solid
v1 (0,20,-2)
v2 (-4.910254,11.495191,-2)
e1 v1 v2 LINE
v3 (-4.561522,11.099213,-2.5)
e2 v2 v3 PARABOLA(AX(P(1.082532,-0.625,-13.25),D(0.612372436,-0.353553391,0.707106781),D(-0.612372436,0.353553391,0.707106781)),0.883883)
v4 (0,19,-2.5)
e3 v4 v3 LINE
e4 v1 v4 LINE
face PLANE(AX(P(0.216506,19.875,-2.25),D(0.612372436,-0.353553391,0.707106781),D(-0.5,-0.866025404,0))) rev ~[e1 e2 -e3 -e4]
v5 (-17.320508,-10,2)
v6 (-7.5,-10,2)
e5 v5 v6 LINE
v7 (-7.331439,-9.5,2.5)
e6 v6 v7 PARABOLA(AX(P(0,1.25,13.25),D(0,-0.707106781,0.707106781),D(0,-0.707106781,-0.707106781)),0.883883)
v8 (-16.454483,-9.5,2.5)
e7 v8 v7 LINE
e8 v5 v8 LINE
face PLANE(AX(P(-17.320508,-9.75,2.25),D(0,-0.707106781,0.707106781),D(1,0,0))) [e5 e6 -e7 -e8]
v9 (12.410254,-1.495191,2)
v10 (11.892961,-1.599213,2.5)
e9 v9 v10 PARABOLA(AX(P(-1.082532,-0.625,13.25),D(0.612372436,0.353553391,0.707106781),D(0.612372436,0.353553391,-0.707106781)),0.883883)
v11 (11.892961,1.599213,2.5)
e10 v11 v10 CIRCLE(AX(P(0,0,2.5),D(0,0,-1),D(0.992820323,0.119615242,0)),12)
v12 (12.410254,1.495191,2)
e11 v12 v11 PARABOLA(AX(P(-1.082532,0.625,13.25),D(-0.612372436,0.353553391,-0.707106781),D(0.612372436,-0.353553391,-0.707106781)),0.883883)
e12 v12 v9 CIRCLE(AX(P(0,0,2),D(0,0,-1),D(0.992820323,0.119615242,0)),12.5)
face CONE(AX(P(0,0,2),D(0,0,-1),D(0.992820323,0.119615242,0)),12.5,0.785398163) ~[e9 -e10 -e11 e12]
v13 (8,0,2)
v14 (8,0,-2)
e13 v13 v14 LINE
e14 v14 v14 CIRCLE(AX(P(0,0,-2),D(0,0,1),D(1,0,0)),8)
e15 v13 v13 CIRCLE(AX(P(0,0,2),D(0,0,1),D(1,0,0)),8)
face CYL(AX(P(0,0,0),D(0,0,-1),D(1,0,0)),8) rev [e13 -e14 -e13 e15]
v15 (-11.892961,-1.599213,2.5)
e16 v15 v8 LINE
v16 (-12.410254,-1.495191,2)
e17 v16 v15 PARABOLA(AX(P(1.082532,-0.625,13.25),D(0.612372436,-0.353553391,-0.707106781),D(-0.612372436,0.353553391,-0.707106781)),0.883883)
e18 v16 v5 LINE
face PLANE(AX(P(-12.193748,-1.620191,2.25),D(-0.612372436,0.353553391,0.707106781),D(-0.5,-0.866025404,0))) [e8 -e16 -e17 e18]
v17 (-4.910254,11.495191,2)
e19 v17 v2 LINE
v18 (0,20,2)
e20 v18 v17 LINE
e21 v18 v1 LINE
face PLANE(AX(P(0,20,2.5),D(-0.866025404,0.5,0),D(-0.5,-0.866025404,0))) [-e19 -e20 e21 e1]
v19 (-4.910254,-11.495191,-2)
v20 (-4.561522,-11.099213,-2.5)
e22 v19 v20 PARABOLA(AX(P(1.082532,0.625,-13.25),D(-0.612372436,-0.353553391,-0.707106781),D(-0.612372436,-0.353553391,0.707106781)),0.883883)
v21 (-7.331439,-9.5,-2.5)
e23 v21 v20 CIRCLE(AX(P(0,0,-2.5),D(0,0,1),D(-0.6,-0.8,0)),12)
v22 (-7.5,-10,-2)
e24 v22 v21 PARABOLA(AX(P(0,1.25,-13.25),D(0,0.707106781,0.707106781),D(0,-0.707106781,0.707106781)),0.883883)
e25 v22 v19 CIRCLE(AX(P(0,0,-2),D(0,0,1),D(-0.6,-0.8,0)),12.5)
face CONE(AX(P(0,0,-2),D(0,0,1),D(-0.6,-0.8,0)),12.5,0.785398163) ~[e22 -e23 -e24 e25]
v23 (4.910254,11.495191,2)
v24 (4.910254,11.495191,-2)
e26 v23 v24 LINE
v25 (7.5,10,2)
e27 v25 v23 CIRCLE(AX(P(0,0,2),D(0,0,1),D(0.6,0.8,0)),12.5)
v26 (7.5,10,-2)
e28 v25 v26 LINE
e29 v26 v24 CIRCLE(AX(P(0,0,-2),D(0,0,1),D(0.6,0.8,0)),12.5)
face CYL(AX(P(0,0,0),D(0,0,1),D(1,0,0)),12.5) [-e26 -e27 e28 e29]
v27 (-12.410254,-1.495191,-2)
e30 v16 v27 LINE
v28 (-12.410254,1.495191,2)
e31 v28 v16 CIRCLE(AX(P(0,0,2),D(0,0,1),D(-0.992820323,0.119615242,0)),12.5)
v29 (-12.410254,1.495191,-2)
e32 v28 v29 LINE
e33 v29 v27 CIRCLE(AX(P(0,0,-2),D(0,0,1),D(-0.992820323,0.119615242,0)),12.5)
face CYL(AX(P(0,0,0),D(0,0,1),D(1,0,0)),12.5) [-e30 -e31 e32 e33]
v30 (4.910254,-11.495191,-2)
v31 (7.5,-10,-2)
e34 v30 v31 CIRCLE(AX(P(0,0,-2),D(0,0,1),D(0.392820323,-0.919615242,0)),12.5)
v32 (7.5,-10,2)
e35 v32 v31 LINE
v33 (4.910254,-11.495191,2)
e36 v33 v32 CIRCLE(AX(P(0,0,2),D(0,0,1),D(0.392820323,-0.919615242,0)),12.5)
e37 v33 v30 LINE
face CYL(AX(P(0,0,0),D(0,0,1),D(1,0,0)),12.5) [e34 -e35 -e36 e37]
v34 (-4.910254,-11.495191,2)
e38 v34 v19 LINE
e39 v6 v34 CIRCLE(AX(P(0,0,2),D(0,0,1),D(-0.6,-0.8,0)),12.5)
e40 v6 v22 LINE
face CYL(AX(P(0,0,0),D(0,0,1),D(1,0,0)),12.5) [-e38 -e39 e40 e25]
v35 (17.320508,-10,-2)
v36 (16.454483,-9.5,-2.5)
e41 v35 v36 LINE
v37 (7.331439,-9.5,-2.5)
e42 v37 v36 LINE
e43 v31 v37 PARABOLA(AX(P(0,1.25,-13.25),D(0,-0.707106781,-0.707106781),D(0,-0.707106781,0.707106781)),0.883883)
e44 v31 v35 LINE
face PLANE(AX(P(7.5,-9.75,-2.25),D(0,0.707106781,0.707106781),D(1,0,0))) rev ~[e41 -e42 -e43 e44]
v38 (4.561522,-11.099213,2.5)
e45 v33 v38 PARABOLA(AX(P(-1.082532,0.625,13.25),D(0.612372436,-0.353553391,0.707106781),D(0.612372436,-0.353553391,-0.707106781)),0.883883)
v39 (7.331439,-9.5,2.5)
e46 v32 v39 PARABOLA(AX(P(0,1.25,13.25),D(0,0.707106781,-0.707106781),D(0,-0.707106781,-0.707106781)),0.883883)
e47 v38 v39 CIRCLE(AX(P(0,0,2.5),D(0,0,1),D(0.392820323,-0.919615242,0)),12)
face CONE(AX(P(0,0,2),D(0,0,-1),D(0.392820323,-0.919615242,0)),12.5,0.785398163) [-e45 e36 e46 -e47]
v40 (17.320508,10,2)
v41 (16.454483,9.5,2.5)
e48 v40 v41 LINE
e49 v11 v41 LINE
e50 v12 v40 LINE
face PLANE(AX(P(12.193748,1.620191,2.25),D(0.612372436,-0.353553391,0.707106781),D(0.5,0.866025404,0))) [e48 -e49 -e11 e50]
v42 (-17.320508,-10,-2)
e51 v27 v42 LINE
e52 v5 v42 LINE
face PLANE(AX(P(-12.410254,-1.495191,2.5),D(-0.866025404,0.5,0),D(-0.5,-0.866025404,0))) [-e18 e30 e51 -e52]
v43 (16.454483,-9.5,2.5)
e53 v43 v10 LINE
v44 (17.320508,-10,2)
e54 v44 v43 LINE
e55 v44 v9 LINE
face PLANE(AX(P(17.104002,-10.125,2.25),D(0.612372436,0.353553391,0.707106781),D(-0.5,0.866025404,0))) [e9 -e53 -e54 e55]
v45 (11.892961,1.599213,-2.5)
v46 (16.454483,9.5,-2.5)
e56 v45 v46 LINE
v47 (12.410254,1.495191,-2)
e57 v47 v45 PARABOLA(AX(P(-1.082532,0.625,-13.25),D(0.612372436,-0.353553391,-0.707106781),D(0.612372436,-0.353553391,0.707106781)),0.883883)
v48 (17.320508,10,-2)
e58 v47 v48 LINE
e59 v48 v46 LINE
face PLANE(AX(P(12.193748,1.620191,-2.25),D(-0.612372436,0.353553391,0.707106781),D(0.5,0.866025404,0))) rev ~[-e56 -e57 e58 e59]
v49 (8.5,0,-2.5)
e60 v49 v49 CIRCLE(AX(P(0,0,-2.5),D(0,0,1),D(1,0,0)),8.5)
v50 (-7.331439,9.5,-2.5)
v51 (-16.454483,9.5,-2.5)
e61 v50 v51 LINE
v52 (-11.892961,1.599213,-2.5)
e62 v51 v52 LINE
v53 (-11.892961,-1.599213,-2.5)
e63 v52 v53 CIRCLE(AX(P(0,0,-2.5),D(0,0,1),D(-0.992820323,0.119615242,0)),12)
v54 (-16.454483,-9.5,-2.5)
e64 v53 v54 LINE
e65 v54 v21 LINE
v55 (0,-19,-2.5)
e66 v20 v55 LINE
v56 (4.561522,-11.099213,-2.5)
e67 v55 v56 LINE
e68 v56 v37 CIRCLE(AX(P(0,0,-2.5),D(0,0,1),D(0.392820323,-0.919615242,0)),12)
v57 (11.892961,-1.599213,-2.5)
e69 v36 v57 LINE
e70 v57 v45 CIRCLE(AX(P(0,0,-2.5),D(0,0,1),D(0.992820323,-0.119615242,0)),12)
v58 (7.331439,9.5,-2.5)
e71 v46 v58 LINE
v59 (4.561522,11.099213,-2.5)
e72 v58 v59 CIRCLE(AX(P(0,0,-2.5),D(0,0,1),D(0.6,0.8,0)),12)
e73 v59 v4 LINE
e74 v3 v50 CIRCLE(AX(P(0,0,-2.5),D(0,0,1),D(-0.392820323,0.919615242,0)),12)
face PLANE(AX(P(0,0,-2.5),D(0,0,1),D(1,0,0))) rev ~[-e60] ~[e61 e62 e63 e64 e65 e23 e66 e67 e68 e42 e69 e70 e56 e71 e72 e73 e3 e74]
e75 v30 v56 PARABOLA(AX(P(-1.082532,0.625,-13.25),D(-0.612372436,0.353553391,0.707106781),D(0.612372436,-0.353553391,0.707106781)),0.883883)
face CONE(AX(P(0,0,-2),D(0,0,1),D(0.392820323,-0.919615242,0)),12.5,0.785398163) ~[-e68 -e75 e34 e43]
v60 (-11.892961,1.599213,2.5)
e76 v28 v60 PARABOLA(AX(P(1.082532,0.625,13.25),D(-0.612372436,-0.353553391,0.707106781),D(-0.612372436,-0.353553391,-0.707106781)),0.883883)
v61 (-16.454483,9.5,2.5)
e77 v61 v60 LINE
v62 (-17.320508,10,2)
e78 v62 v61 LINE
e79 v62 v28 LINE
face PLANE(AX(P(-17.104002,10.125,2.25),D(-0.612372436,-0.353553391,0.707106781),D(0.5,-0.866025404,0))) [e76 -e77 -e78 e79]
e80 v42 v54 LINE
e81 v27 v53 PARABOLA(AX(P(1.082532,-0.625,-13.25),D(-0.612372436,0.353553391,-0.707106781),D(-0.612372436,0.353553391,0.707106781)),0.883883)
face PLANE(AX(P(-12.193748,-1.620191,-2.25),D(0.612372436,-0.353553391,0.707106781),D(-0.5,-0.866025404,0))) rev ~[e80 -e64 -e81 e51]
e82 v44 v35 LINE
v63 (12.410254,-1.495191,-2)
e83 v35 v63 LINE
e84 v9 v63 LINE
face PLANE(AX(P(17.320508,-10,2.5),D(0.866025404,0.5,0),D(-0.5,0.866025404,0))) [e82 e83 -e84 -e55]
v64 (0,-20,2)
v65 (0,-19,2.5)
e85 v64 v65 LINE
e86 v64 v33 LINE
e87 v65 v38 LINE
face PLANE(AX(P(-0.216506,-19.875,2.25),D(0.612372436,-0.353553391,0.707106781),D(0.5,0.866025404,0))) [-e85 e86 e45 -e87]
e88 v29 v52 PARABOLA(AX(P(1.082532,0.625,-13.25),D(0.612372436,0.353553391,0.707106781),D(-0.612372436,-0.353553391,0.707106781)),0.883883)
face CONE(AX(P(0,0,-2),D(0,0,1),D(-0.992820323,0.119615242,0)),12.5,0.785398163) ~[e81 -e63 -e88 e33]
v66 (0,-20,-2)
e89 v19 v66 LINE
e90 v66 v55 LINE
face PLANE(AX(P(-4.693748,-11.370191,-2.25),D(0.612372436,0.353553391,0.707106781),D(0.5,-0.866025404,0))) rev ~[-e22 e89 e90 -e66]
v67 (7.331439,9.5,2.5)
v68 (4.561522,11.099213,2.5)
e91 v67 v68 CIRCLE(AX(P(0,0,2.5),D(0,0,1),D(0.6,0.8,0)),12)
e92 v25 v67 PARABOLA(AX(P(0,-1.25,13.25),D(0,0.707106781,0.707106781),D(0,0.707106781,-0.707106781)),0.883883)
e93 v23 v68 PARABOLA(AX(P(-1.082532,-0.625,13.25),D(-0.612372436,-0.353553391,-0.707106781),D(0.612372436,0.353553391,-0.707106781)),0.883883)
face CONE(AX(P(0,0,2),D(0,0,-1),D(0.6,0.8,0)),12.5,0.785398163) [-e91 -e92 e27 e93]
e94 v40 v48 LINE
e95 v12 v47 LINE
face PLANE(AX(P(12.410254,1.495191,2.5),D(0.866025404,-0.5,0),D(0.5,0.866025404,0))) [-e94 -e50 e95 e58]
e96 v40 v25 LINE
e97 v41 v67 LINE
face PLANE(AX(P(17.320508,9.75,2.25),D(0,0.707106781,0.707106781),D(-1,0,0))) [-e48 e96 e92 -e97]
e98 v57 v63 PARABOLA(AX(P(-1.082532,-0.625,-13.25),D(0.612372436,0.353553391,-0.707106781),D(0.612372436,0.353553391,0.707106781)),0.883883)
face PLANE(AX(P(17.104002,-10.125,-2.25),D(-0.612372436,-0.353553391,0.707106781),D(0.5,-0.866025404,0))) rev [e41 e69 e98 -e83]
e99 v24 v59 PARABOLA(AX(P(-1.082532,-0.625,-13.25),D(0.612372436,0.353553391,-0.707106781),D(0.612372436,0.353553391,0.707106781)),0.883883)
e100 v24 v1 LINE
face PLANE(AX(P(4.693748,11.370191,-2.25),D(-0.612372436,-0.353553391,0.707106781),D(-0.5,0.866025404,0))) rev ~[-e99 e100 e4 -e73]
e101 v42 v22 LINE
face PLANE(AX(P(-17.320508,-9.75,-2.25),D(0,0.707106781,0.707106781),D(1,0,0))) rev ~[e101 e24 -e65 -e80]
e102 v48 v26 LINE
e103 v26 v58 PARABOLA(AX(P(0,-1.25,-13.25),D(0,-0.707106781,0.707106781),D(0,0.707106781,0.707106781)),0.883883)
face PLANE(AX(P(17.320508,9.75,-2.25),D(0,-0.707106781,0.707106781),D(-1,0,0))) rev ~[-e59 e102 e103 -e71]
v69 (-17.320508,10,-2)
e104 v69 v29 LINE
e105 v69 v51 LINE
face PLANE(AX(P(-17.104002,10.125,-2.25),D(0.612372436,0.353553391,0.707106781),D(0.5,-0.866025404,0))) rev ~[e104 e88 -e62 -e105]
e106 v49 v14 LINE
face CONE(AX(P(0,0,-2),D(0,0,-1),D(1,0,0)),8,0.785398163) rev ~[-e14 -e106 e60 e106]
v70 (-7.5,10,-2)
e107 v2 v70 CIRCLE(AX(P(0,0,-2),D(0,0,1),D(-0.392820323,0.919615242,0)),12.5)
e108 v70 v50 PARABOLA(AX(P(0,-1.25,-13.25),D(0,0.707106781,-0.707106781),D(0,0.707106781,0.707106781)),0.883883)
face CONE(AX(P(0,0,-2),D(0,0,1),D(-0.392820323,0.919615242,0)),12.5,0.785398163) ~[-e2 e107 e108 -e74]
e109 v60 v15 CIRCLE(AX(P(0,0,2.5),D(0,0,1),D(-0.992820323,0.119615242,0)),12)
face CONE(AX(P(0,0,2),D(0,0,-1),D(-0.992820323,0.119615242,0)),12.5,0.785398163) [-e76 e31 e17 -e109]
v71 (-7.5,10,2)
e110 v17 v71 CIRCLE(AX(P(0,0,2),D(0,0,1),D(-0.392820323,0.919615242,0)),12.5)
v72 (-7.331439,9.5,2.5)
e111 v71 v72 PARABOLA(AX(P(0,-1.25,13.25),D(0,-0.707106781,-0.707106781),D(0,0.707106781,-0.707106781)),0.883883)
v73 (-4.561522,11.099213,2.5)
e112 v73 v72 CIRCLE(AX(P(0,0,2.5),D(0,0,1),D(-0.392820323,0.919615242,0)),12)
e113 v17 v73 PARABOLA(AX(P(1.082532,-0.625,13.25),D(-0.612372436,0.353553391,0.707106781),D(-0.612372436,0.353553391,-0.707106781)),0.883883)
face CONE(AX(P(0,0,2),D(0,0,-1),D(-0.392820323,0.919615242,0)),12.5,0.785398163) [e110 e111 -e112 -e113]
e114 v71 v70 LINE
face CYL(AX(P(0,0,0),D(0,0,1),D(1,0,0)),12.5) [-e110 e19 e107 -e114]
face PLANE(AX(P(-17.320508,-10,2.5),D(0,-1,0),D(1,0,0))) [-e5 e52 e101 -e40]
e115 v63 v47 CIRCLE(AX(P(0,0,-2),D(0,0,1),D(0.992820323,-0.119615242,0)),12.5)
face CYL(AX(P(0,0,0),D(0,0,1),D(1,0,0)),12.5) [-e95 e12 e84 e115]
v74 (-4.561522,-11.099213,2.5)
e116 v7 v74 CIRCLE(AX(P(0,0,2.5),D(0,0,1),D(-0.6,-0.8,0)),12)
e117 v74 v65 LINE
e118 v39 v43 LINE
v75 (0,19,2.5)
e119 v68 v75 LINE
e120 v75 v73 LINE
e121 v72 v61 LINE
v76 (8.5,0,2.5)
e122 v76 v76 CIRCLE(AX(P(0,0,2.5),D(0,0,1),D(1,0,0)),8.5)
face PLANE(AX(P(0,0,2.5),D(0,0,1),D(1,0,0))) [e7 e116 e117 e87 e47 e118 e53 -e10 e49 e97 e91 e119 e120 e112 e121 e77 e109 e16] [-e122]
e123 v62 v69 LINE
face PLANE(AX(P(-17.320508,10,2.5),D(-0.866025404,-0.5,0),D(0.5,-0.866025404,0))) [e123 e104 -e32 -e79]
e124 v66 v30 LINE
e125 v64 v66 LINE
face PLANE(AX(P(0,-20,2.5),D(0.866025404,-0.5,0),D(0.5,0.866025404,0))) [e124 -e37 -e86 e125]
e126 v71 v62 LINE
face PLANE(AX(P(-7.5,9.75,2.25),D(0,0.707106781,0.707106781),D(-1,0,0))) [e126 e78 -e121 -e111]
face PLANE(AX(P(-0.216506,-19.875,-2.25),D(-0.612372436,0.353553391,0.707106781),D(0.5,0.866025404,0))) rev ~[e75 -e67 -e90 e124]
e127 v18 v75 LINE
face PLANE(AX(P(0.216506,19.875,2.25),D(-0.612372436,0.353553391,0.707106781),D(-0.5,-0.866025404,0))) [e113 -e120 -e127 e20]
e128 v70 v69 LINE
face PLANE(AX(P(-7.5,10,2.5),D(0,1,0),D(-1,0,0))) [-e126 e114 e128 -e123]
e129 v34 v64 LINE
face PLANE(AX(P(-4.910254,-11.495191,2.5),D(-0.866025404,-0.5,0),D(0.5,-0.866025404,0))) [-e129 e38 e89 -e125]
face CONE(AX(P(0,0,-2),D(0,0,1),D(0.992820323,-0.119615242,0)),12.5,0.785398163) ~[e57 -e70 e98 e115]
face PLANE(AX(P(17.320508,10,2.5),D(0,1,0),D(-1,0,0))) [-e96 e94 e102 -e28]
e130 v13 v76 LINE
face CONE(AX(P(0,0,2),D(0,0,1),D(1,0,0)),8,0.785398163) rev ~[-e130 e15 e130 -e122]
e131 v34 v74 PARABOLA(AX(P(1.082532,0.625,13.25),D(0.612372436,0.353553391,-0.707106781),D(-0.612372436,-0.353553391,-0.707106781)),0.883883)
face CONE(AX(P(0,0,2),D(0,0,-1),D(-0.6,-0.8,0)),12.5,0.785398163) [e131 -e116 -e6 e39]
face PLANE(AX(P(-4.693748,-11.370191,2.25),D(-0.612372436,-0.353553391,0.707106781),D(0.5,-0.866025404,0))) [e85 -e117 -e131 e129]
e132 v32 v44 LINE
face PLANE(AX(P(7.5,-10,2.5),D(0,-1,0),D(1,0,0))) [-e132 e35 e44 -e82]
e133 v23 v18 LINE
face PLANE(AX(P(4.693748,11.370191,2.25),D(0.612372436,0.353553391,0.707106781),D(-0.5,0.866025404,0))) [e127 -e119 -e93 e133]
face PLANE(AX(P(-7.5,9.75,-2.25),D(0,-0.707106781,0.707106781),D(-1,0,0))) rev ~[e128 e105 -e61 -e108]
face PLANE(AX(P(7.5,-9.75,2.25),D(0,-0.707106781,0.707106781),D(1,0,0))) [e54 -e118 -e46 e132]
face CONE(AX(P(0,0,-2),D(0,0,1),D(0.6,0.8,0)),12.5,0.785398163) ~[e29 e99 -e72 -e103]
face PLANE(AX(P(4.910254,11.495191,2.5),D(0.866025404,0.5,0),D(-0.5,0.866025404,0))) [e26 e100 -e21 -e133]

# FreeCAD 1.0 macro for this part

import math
import FreeCAD as App
import Part
import Sketcher

V = App.Vector
Q = App.Units.Quantity


def edges_at(feature, points):
    """Names of the edges that pass closest to the given points."""
    edges = feature.Shape.Edges
    near = lambda p: min(range(len(edges)), key=lambda i: edges[i].distToShape(Part.Vertex(*p))[0])
    return sorted({f"Edge{near(p) + 1}" for p in points})

doc = App.newDocument("Part")
params = doc.addObject("Spreadsheet::Sheet", "Params")
for row, (alias, value) in enumerate([
    ("sketch1_diameter", "25 mm"),
    ("sketch1_diameter2", "16 mm"),
    ("pad1_length", "5 mm"),
    ("sketch2_radius", "12.5 mm"),
    ("pad2_length", "5 mm"),
    ("chamfer_size", "0.5 mm"),
], start=1):
    params.set(f"A{row}", alias)
    params.set(f"B{row}", "=" + value)
    params.setAlias(f"B{row}", alias)

body = doc.addObject("PartDesign::Body", "Body")

# Sketch on XY plane
sketch1 = body.newObject("Sketcher::SketchObject", "Sketch")
sketch1.AttachmentSupport = (doc.getObject("XY_Plane"), [""])
sketch1.MapMode = "FlatFace"
sketch1.addGeometry(Part.Circle(V(0, 0, 0), V(0, 0, 1), 12.5), False)
sketch1.addGeometry(Part.Circle(V(0, 0, 0), V(0, 0, 1), 8), False)
sketch1.addConstraint(Sketcher.Constraint("Coincident", 0, 3, -1, 1))
sketch1.addConstraint(Sketcher.Constraint("Coincident", 1, 3, -1, 1))
sketch1.addConstraint(Sketcher.Constraint("Diameter", 0, 25.0))
sketch1.addConstraint(Sketcher.Constraint("Diameter", 1, 16.0))
sketch1.setExpression("Constraints[2]", "Params.sketch1_diameter")
sketch1.setExpression("Constraints[3]", "Params.sketch1_diameter2")
pad1 = body.newObject("PartDesign::Pad", "Pad")
pad1.Profile = sketch1
pad1.setExpression("Length", "Params.pad1_length")
pad1.Midplane = True

# Sketch on XY plane
sketch2 = body.newObject("Sketcher::SketchObject", "Sketch001")
sketch2.AttachmentSupport = (doc.getObject("XY_Plane"), [""])
sketch2.MapMode = "FlatFace"
sketch2.AttachmentOffset = App.Placement(V(0, 0, 2.5), App.Rotation())
sketch2.addGeometry(Part.ArcOfCircle(Part.Circle(V(0, 0, 0), V(0, 0, 1), 12.5), math.radians(90), math.radians(113.130102)), False)
sketch2.addGeometry(Part.ArcOfCircle(Part.Circle(V(0, 0, 0), V(0, 0, 1), 12.5), math.radians(66.869898), math.radians(90)), False)
sketch2.addGeometry(Part.LineSegment(V(4.910254, 11.495191, 0), V(0, 20, 0)), False)
sketch2.addGeometry(Part.LineSegment(V(0, 20, 0), V(-4.910254, 11.495191, 0)), False)
sketch2.addGeometry(Part.LineSegment(V(17.320508, 10, 0), V(7.5, 10, 0)), False)
sketch2.addGeometry(Part.ArcOfCircle(Part.Circle(V(0, 0, 0), V(0, 0, 1), 12.5), math.radians(6.869898), math.radians(53.130102)), False)
sketch2.addGeometry(Part.LineSegment(V(12.410254, 1.495191, 0), V(17.320508, 10, 0)), False)
sketch2.addGeometry(Part.ArcOfCircle(Part.Circle(V(0, 0, 0), V(0, 0, 1), 12.5), math.radians(126.869898), math.radians(173.130102)), False)
sketch2.addGeometry(Part.LineSegment(V(-7.5, 10, 0), V(-17.320508, 10, 0)), False)
sketch2.addGeometry(Part.LineSegment(V(-17.320508, 10, 0), V(-12.410254, 1.495191, 0)), False)
sketch2.addGeometry(Part.ArcOfCircle(Part.Circle(V(0, 0, 0), V(0, 0, 1), 12.5), math.radians(-173.130102), math.radians(-126.869898)), False)
sketch2.addGeometry(Part.LineSegment(V(-12.410254, -1.495191, 0), V(-17.320508, -10, 0)), False)
sketch2.addGeometry(Part.LineSegment(V(-17.320508, -10, 0), V(-7.5, -10, 0)), False)
sketch2.addGeometry(Part.LineSegment(V(17.320508, -10, 0), V(12.410254, -1.495191, 0)), False)
sketch2.addGeometry(Part.ArcOfCircle(Part.Circle(V(0, 0, 0), V(0, 0, 1), 12.5), math.radians(-53.130102), math.radians(-6.869898)), False)
sketch2.addGeometry(Part.LineSegment(V(7.5, -10, 0), V(17.320508, -10, 0)), False)
sketch2.addGeometry(Part.ArcOfCircle(Part.Circle(V(0, 0, 0), V(0, 0, 1), 12.5), math.radians(-113.130102), math.radians(-66.869898)), False)
sketch2.addGeometry(Part.LineSegment(V(-4.910254, -11.495191, 0), V(0, -20, 0)), False)
sketch2.addGeometry(Part.LineSegment(V(0, -20, 0), V(4.910254, -11.495191, 0)), False)
sketch2.addConstraint(Sketcher.Constraint("Tangent", 0, 1, 1, 2))
sketch2.addConstraint(Sketcher.Constraint("Coincident", 1, 1, 2, 1))
sketch2.addConstraint(Sketcher.Constraint("Coincident", 2, 2, 3, 1))
sketch2.addConstraint(Sketcher.Constraint("Coincident", 3, 2, 0, 2))
sketch2.addConstraint(Sketcher.Constraint("Coincident", 4, 2, 5, 2))
sketch2.addConstraint(Sketcher.Constraint("Coincident", 5, 1, 6, 1))
sketch2.addConstraint(Sketcher.Constraint("Coincident", 6, 2, 4, 1))
sketch2.addConstraint(Sketcher.Constraint("Coincident", 7, 1, 8, 1))
sketch2.addConstraint(Sketcher.Constraint("Coincident", 8, 2, 9, 1))
sketch2.addConstraint(Sketcher.Constraint("Coincident", 9, 2, 7, 2))
sketch2.addConstraint(Sketcher.Constraint("Coincident", 10, 1, 11, 1))
sketch2.addConstraint(Sketcher.Constraint("Coincident", 11, 2, 12, 1))
sketch2.addConstraint(Sketcher.Constraint("Coincident", 12, 2, 10, 2))
sketch2.addConstraint(Sketcher.Constraint("Coincident", 13, 2, 14, 2))
sketch2.addConstraint(Sketcher.Constraint("Coincident", 14, 1, 15, 1))
sketch2.addConstraint(Sketcher.Constraint("Coincident", 15, 2, 13, 1))
sketch2.addConstraint(Sketcher.Constraint("Coincident", 16, 1, 17, 1))
sketch2.addConstraint(Sketcher.Constraint("Coincident", 17, 2, 18, 1))
sketch2.addConstraint(Sketcher.Constraint("Coincident", 18, 2, 16, 2))
sketch2.addConstraint(Sketcher.Constraint("Horizontal", 4))
sketch2.addConstraint(Sketcher.Constraint("Horizontal", 8))
sketch2.addConstraint(Sketcher.Constraint("Horizontal", 12))
sketch2.addConstraint(Sketcher.Constraint("Horizontal", 15))
sketch2.addConstraint(Sketcher.Constraint("Coincident", 0, 3, -1, 1))
sketch2.addConstraint(Sketcher.Constraint("Coincident", 5, 3, -1, 1))
sketch2.addConstraint(Sketcher.Constraint("Coincident", 7, 3, -1, 1))
sketch2.addConstraint(Sketcher.Constraint("Coincident", 10, 3, -1, 1))
sketch2.addConstraint(Sketcher.Constraint("Coincident", 14, 3, -1, 1))
sketch2.addConstraint(Sketcher.Constraint("Coincident", 16, 3, -1, 1))
sketch2.addConstraint(Sketcher.Constraint("Equal", 0, 1))
sketch2.addConstraint(Sketcher.Constraint("Equal", 1, 5))
sketch2.addConstraint(Sketcher.Constraint("Equal", 5, 7))
sketch2.addConstraint(Sketcher.Constraint("Equal", 7, 10))
sketch2.addConstraint(Sketcher.Constraint("Equal", 10, 14))
sketch2.addConstraint(Sketcher.Constraint("Equal", 14, 16))
sketch2.addConstraint(Sketcher.Constraint("Symmetric", 6, 2, 11, 2, -1, 1))
sketch2.addConstraint(Sketcher.Constraint("Symmetric", 8, 2, 15, 2, -1, 1))
sketch2.addConstraint(Sketcher.Constraint("Symmetric", 2, 2, 17, 2, -1, 1))
sketch2.addConstraint(Sketcher.Constraint("Symmetric", 6, 2, 8, 2, -2))
sketch2.addConstraint(Sketcher.Constraint("PointOnObject", 0, 1, -2))
sketch2.addConstraint(Sketcher.Constraint("PointOnObject", 2, 2, -2))
sketch2.addConstraint(Sketcher.Constraint("Parallel", 3, 6))
sketch2.addConstraint(Sketcher.Constraint("Parallel", 2, 9))
sketch2.addConstraint(Sketcher.Constraint("Parallel", 6, 11))
sketch2.addConstraint(Sketcher.Constraint("Parallel", 9, 13))
sketch2.addConstraint(Sketcher.Constraint("Parallel", 13, 17))
sketch2.addConstraint(Sketcher.Constraint("Parallel", 11, 18))
sketch2.addConstraint(Sketcher.Constraint("Horizontal", 1, 1, 3, 2))
sketch2.addConstraint(Sketcher.Constraint("Equal", 3, 6))
sketch2.addConstraint(Sketcher.Constraint("Radius", 0, 12.5))
sketch2.addConstraint(Sketcher.Constraint("Angle", 2, Q("120 deg")))
sketch2.addConstraint(Sketcher.Constraint("DistanceY", -1, 1, 2, 2, 20.0))
sketch2.addConstraint(Sketcher.Constraint("DistanceY", -1, 1, 4, 2, 10.0))
sketch2.setExpression("Constraints[49]", "Params.sketch2_radius")
pad2 = body.newObject("PartDesign::Pad", "Pad001")
pad2.Profile = sketch2
pad2.setExpression("Length", "Params.pad2_length")
pad2.Reversed = True
doc.recompute()

chamfer = body.newObject("PartDesign::Chamfer", "Chamfer")
chamfer.Base = (pad2, edges_at(pad2, [
    (12.5, 0, 2.5),
    (14.865, 5.748, 2.5),
    (12.41, 10, 2.5),
    (6.25, 10.825, 2.5),
    (2.455, 15.748, 2.5),
    (-2.455, 15.748, 2.5),
    (-6.25, 10.825, 2.5),
    (-12.41, 10, 2.5),
    (-14.865, 5.748, 2.5),
    (-12.5, 0, 2.5),
    (-14.865, -5.748, 2.5),
    (-12.41, -10, 2.5),
    (-6.25, -10.825, 2.5),
    (-2.455, -15.748, 2.5),
    (2.455, -15.748, 2.5),
    (6.25, -10.825, 2.5),
    (12.41, -10, 2.5),
    (14.865, -5.748, 2.5),
    (-8, 0, 2.5),
    (14.865, 5.748, -2.5),
    (12.41, 10, -2.5),
    (6.25, 10.825, -2.5),
    (2.455, 15.748, -2.5),
    (-2.455, 15.748, -2.5),
    (-6.25, 10.825, -2.5),
    (-12.41, 10, -2.5),
    (-14.865, 5.748, -2.5),
    (-12.5, 0, -2.5),
    (-14.865, -5.748, -2.5),
    (-12.41, -10, -2.5),
    (-6.25, -10.825, -2.5),
    (-2.455, -15.748, -2.5),
    (2.455, -15.748, -2.5),
    (6.25, -10.825, -2.5),
    (12.41, -10, -2.5),
    (14.865, -5.748, -2.5),
    (12.5, 0, -2.5),
    (-8, 0, -2.5),
]))
chamfer.setExpression("Size", "Params.chamfer_size")

doc.recompute()
